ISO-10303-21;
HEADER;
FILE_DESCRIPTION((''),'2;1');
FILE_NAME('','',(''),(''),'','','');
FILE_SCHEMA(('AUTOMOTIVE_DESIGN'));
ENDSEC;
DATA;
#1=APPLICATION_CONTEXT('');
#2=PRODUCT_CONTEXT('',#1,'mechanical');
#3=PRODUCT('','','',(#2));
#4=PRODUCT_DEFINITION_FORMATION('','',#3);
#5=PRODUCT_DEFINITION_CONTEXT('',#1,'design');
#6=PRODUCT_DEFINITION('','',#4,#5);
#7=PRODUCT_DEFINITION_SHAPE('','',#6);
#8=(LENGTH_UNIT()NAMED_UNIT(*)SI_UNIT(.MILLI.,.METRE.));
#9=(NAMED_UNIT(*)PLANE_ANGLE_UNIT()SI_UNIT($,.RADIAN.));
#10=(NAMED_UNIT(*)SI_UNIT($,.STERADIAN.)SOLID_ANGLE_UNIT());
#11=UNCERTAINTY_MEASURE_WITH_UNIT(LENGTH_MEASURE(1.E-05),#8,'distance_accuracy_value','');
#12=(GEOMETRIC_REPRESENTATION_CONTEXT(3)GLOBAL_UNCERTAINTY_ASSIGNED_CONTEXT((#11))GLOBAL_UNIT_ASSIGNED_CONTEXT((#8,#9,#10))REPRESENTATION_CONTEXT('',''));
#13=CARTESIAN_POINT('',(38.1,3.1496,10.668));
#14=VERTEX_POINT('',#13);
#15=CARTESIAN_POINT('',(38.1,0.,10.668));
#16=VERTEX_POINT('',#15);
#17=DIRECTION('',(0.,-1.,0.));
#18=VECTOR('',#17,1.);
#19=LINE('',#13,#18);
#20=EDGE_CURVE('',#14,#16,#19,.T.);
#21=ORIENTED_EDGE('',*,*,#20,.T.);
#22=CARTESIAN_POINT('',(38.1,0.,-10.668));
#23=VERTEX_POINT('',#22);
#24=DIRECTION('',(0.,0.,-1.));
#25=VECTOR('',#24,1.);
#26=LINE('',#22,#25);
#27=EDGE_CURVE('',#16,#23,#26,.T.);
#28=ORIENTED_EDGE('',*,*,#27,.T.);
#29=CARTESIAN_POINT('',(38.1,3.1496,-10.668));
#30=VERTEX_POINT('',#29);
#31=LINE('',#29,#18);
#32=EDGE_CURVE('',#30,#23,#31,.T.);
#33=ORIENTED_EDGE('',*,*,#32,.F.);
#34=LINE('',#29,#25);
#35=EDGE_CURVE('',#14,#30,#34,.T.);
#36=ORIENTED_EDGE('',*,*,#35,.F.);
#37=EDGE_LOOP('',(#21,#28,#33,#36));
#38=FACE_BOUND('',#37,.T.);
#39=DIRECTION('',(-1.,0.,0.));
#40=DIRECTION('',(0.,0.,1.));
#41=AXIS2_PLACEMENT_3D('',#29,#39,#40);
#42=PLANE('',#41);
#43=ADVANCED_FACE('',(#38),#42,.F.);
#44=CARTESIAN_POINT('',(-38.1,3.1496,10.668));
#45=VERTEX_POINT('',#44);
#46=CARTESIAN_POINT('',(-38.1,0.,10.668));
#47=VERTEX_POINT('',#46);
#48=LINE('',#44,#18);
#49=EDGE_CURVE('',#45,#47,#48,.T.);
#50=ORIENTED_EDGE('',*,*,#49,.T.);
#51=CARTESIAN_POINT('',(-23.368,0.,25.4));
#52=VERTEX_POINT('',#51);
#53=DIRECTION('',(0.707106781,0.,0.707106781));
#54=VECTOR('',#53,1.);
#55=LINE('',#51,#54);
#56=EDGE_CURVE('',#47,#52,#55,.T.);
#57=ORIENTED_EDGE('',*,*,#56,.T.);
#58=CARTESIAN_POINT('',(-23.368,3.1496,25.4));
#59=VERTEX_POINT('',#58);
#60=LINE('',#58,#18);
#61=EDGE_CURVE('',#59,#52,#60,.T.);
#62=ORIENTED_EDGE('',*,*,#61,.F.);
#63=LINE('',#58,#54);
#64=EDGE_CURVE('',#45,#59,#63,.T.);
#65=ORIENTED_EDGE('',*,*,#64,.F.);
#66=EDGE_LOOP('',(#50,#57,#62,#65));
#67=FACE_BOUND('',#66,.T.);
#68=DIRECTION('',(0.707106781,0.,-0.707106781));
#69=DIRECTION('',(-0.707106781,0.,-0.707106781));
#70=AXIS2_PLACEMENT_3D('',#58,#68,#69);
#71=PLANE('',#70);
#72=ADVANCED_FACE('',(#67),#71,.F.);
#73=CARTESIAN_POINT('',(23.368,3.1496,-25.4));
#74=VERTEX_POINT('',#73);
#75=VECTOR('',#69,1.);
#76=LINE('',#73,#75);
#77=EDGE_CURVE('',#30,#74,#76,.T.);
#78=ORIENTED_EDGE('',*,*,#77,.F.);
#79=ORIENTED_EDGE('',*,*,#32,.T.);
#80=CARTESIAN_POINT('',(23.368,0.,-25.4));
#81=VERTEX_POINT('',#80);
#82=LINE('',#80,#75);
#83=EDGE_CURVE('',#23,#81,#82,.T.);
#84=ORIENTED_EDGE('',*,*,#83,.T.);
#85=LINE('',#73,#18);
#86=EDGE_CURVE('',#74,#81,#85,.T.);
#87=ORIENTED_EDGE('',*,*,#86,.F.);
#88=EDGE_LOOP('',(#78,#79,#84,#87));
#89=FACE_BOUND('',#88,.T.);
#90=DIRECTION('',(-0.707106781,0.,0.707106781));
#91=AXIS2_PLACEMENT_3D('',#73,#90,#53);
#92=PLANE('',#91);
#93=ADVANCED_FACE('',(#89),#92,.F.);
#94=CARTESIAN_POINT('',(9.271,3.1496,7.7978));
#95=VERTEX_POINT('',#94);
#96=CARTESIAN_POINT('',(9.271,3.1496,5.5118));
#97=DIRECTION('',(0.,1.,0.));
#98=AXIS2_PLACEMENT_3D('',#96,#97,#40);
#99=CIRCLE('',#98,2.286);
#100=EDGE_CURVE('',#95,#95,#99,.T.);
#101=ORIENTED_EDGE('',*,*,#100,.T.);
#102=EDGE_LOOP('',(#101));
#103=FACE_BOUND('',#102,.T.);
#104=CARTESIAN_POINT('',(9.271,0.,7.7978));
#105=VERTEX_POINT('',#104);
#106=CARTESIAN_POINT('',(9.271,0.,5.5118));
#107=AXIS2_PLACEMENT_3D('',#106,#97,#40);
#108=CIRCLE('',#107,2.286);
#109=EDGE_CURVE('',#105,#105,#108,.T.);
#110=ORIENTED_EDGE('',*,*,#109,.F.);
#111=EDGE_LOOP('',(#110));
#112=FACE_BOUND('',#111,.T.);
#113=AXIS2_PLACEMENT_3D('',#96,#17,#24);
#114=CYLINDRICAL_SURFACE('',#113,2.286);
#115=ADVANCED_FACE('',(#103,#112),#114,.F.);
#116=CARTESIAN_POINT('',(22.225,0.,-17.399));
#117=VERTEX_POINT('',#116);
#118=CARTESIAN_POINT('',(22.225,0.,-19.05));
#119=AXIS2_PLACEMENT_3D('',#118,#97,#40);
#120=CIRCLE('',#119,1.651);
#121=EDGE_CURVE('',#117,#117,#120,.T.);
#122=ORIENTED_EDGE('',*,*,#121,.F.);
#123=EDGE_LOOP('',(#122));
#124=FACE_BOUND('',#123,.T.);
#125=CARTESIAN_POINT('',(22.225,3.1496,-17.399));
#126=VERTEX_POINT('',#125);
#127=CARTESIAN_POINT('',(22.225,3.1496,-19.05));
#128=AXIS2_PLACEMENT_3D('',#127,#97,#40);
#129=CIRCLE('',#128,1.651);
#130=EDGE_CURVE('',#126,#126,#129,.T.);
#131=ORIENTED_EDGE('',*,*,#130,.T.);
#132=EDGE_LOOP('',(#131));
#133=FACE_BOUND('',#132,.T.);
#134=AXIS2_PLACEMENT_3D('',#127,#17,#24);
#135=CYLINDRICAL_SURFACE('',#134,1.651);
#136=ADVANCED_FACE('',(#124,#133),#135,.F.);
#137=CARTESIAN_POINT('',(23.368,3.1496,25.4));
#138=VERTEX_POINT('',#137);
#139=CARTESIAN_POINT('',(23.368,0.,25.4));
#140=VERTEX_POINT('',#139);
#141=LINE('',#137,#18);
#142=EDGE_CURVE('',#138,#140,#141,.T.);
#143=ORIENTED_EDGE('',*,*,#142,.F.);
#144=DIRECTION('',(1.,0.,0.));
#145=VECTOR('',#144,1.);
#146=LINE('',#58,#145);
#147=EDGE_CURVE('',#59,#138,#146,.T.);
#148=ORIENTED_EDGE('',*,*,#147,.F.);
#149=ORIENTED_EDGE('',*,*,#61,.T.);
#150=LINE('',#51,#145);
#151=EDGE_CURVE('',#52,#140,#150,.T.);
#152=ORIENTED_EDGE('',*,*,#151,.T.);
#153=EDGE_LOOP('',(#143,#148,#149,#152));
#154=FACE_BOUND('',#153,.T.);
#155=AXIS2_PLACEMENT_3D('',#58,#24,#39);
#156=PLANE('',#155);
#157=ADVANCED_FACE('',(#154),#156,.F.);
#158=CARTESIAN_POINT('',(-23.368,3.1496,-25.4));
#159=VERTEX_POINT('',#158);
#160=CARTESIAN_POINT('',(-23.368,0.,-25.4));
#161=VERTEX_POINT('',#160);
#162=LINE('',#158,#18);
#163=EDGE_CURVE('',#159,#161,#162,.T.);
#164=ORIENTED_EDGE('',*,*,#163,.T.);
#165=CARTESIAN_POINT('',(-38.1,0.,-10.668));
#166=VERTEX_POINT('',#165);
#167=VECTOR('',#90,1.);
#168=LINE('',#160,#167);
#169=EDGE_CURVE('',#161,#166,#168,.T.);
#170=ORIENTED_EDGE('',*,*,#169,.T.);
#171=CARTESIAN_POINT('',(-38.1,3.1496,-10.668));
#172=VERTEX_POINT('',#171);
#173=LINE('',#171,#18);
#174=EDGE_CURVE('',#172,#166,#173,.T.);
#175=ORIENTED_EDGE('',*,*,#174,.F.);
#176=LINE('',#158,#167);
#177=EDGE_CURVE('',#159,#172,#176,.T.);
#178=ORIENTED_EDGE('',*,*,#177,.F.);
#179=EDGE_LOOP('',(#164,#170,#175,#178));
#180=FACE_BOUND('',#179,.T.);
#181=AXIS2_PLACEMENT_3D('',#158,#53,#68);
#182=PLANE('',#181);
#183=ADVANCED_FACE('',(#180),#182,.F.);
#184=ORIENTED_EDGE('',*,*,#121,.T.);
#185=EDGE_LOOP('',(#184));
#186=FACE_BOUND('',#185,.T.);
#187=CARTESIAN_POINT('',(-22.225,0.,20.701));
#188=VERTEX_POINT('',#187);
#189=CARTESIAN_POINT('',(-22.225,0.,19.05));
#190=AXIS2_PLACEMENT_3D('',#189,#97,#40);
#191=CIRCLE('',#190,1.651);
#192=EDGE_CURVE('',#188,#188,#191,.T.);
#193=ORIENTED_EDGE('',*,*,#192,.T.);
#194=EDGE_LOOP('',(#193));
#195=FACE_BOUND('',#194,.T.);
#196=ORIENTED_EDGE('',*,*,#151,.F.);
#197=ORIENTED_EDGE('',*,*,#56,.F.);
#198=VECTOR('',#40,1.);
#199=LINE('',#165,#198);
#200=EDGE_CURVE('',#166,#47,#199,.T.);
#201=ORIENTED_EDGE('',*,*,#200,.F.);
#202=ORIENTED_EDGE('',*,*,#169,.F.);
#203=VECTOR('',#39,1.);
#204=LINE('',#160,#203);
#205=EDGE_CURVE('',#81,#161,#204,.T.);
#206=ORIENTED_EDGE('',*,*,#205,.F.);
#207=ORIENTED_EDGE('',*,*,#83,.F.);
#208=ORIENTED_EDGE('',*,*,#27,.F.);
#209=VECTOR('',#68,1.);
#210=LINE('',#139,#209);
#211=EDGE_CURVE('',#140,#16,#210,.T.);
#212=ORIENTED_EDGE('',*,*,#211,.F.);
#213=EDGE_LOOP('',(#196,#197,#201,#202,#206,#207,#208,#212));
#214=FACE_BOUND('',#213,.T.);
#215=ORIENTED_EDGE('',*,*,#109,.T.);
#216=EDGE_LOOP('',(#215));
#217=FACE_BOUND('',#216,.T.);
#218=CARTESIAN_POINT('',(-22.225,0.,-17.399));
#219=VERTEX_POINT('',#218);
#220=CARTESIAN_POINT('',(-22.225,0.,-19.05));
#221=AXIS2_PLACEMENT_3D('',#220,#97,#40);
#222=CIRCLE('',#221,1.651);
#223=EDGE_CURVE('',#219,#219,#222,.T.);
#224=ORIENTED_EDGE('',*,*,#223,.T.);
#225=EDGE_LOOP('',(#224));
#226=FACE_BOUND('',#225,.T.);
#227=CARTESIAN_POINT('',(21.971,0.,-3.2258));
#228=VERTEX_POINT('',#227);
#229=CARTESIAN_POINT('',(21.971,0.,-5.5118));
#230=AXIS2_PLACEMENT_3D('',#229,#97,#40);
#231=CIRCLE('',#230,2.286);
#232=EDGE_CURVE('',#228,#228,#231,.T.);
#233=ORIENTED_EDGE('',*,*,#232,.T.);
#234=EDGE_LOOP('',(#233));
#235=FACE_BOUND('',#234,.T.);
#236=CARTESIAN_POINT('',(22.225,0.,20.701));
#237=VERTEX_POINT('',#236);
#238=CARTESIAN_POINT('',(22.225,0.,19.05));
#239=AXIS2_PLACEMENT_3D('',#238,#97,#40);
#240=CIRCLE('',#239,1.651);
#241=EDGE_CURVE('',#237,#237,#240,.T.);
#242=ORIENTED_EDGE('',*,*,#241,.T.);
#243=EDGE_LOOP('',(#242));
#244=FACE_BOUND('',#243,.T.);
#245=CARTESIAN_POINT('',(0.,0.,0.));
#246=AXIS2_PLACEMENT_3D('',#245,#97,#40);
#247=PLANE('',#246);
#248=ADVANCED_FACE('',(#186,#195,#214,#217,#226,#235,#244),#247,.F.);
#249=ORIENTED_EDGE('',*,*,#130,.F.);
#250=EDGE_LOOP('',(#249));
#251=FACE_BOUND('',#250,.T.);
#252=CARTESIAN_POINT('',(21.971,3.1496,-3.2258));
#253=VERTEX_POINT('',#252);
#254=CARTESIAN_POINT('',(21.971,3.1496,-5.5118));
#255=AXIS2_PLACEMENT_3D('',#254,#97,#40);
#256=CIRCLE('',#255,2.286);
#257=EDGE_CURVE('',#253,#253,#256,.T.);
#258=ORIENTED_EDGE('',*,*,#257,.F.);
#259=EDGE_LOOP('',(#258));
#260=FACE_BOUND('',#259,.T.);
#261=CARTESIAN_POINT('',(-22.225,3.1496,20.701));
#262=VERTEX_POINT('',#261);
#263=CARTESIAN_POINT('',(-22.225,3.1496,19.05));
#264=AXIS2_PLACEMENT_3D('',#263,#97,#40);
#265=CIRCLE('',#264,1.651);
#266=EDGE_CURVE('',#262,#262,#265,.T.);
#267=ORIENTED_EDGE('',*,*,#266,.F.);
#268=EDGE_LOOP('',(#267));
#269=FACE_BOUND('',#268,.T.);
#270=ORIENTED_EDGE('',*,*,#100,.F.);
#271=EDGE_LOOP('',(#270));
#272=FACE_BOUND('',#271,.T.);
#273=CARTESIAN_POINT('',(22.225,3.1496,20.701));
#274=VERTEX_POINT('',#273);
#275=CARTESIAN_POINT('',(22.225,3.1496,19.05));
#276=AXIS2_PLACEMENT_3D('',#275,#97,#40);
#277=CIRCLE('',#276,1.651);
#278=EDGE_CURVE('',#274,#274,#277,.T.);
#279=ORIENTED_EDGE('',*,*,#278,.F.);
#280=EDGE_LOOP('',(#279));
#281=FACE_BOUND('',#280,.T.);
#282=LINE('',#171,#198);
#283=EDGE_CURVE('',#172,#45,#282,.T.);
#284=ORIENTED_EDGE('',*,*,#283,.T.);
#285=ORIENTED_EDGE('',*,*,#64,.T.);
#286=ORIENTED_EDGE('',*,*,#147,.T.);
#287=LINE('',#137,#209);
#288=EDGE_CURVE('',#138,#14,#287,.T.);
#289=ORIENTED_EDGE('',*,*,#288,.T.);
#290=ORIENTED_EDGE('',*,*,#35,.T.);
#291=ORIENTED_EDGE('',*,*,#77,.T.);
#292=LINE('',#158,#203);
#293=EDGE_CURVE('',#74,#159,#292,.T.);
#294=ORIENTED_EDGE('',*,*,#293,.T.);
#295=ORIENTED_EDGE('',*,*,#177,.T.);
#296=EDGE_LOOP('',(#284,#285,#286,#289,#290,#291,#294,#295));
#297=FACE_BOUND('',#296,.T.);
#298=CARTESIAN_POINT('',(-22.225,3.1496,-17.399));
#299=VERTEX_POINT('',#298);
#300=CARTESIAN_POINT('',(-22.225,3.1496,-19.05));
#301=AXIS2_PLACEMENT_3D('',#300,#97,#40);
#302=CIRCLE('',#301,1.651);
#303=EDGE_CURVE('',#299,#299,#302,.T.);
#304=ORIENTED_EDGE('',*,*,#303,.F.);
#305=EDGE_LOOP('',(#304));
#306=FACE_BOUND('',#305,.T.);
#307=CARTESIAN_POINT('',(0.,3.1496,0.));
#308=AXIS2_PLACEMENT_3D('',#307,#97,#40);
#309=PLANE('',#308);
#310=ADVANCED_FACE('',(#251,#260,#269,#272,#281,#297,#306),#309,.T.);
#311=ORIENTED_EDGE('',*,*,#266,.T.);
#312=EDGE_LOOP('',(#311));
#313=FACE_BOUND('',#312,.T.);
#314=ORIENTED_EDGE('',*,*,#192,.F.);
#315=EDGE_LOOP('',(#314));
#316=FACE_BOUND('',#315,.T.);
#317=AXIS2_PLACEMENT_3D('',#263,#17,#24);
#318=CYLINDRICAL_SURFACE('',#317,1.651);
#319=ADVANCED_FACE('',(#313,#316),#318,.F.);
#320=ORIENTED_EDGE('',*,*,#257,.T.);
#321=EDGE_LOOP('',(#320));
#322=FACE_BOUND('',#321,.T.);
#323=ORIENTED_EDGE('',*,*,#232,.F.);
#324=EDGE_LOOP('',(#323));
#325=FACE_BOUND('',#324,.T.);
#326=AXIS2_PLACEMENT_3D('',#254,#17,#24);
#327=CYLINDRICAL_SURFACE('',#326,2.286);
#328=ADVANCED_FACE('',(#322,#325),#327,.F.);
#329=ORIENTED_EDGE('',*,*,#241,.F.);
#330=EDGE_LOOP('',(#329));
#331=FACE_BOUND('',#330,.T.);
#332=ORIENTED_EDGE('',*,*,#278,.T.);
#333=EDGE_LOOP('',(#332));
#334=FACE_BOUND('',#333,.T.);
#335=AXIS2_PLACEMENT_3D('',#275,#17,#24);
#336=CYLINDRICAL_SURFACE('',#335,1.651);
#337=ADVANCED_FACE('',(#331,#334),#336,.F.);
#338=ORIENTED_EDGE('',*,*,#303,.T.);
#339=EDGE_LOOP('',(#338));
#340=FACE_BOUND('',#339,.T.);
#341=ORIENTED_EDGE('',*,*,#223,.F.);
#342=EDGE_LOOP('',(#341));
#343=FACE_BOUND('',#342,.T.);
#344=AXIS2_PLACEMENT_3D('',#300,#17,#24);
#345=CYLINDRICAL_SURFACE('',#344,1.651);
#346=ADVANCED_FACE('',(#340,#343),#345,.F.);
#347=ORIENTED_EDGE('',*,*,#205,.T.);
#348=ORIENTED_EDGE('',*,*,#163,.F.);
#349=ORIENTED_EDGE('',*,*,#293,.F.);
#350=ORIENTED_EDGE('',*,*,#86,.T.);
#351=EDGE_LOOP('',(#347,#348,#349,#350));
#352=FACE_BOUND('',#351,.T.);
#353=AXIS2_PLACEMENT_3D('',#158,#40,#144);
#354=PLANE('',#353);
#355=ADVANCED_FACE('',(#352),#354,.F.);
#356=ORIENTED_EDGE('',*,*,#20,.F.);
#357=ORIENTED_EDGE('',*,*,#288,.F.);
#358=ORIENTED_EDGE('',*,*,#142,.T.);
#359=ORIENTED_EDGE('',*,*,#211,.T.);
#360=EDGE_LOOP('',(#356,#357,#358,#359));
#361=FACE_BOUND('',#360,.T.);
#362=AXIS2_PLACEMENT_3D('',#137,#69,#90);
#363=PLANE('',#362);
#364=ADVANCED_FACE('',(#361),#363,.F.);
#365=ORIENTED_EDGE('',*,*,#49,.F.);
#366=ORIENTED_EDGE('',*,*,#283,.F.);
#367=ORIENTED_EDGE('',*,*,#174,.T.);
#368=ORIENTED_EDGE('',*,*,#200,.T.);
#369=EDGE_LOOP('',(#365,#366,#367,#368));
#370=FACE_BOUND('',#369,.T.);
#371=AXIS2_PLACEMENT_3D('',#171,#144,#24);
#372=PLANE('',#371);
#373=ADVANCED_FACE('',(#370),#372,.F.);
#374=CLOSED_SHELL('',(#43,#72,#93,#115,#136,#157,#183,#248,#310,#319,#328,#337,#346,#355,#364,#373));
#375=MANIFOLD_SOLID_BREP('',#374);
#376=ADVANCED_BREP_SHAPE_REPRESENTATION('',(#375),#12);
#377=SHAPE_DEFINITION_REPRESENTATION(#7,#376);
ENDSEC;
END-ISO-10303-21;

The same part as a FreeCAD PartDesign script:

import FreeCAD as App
import Part
import Sketcher
from FreeCAD import Vector
Q = App.Units.Quantity


def add_polygon(sketch, points):
    """Adds a closed chain of lines whose ends are joined by coincident constraints."""
    first, n = sketch.GeometryCount, len(points)
    for a, b in zip(points, points[1:] + points[:1]):
        sketch.addGeometry(Part.LineSegment(App.Vector(*a, 0), App.Vector(*b, 0)), False)
    for i in range(n):
        sketch.addConstraint(Sketcher.Constraint("Coincident", first + i, 2, first + (i + 1) % n, 1))

doc = App.newDocument("Part")
params = doc.addObject("Spreadsheet::Sheet", "Params")
for row, (alias, value) in enumerate([
    ("sketch1_diameter", "0.13 in"),
    ("sketch1_diameter2", "0.18 in"),
    ("sketch1_width", "1.84 in"),
    ("sketch1_height", "0.84 in"),
    ("pad1_length", "0.124 in"),
], start=1):
    params.set(f"A{row}", alias)
    params.set(f"B{row}", "=" + value)
    params.setAlias(f"B{row}", alias)

body = doc.addObject("PartDesign::Body", "Body")

# Sketch on XZ plane
sketch1 = body.newObject("Sketcher::SketchObject", "Sketch")
sketch1.AttachmentSupport = (doc.getObject("XZ_Plane"), [""])
sketch1.MapMode = "FlatFace"
add_polygon(sketch1, [(23.368, 25.4), (38.1, 10.668), (38.1, -10.668), (23.368, -25.4), (-23.368, -25.4), (-38.1, -10.668), (-38.1, 10.668), (-23.368, 25.4)])  # lines 0-7
sketch1.addGeometry(Part.Circle(Vector(-22.225, 19.05, 0), Vector(0, 0, 1), 1.651), False)  # 8
sketch1.addGeometry(Part.Circle(Vector(22.225, 19.05, 0), Vector(0, 0, 1), 1.651), False)  # 9
sketch1.addGeometry(Part.Circle(Vector(9.271, 5.5118, 0), Vector(0, 0, 1), 2.286), False)  # 10
sketch1.addGeometry(Part.Circle(Vector(-22.225, -19.05, 0), Vector(0, 0, 1), 1.651), False)  # 11
sketch1.addGeometry(Part.Circle(Vector(21.971, -5.5118, 0), Vector(0, 0, 1), 2.286), False)  # 12
sketch1.addGeometry(Part.Circle(Vector(22.225, -19.05, 0), Vector(0, 0, 1), 1.651), False)  # 13
sketch1.addConstraint(Sketcher.Constraint("Vertical", 1))
sketch1.addConstraint(Sketcher.Constraint("Horizontal", 3))
sketch1.addConstraint(Sketcher.Constraint("Vertical", 5))
sketch1.addConstraint(Sketcher.Constraint("Horizontal", 7))
sketch1.addConstraint(Sketcher.Constraint("Equal", 8, 9))
sketch1.addConstraint(Sketcher.Constraint("Equal", 9, 11))
sketch1.addConstraint(Sketcher.Constraint("Equal", 10, 12))
sketch1.addConstraint(Sketcher.Constraint("Equal", 11, 13))
sketch1.addConstraint(Sketcher.Constraint("Symmetric", 9, 3, 11, 3, -1, 1))
sketch1.addConstraint(Sketcher.Constraint("Symmetric", 8, 3, 13, 3, -1, 1))
sketch1.addConstraint(Sketcher.Constraint("Symmetric", 0, 2, 4, 2, -1, 1))
sketch1.addConstraint(Sketcher.Constraint("Symmetric", 2, 2, 6, 2, -1, 1))
sketch1.addConstraint(Sketcher.Constraint("Symmetric", 8, 3, 9, 3, -2))
sketch1.addConstraint(Sketcher.Constraint("Perpendicular", 0, 2))
sketch1.addConstraint(Sketcher.Constraint("Perpendicular", 2, 4))
sketch1.addConstraint(Sketcher.Constraint("Perpendicular", 4, 6))
sketch1.addConstraint(Sketcher.Constraint("Horizontal", 1, 2, 4, 2))
sketch1.addConstraint(Sketcher.Constraint("Vertical", 3, 2, 6, 2))
sketch1.addConstraint(Sketcher.Constraint("Diameter", 8, Q("0.13 in")))
sketch1.addConstraint(Sketcher.Constraint("Diameter", 10, Q("0.18 in")))
sketch1.addConstraint(Sketcher.Constraint("DistanceY", 2, 2, -1, 1, Q("1 in")))
sketch1.addConstraint(Sketcher.Constraint("DistanceX", 3, 2, 3, 1, Q("1.84 in")))
sketch1.addConstraint(Sketcher.Constraint("DistanceY", 1, 2, 1, 1, Q("0.84 in")))
sketch1.addConstraint(Sketcher.Constraint("DistanceY", 11, 3, 8, 3, Q("1.5 in")))
sketch1.addConstraint(Sketcher.Constraint("DistanceX", 10, 3, 12, 3, Q("0.5 in")))
sketch1.addConstraint(Sketcher.Constraint("DistanceX", 8, 3, 9, 3, Q("1.75 in")))
sketch1.addConstraint(Sketcher.Constraint("DistanceX", 10, 3, 9, 3, Q("0.51 in")))
sketch1.addConstraint(Sketcher.Constraint("DistanceY", -1, 1, 10, 3, Q("0.217 in")))
sketch1.addConstraint(Sketcher.Constraint("DistanceY", 12, 3, -1, 1, Q("0.217 in")))
sketch1.setExpression("Constraints[26]", "Params.sketch1_diameter")
sketch1.setExpression("Constraints[27]", "Params.sketch1_diameter2")
sketch1.setExpression("Constraints[29]", "Params.sketch1_width")
sketch1.setExpression("Constraints[30]", "Params.sketch1_height")
pad1 = body.newObject("PartDesign::Pad", "Pad")
pad1.Profile = sketch1
pad1.setExpression("Length", "Params.pad1_length")
pad1.Reversed = True

doc.recompute()
